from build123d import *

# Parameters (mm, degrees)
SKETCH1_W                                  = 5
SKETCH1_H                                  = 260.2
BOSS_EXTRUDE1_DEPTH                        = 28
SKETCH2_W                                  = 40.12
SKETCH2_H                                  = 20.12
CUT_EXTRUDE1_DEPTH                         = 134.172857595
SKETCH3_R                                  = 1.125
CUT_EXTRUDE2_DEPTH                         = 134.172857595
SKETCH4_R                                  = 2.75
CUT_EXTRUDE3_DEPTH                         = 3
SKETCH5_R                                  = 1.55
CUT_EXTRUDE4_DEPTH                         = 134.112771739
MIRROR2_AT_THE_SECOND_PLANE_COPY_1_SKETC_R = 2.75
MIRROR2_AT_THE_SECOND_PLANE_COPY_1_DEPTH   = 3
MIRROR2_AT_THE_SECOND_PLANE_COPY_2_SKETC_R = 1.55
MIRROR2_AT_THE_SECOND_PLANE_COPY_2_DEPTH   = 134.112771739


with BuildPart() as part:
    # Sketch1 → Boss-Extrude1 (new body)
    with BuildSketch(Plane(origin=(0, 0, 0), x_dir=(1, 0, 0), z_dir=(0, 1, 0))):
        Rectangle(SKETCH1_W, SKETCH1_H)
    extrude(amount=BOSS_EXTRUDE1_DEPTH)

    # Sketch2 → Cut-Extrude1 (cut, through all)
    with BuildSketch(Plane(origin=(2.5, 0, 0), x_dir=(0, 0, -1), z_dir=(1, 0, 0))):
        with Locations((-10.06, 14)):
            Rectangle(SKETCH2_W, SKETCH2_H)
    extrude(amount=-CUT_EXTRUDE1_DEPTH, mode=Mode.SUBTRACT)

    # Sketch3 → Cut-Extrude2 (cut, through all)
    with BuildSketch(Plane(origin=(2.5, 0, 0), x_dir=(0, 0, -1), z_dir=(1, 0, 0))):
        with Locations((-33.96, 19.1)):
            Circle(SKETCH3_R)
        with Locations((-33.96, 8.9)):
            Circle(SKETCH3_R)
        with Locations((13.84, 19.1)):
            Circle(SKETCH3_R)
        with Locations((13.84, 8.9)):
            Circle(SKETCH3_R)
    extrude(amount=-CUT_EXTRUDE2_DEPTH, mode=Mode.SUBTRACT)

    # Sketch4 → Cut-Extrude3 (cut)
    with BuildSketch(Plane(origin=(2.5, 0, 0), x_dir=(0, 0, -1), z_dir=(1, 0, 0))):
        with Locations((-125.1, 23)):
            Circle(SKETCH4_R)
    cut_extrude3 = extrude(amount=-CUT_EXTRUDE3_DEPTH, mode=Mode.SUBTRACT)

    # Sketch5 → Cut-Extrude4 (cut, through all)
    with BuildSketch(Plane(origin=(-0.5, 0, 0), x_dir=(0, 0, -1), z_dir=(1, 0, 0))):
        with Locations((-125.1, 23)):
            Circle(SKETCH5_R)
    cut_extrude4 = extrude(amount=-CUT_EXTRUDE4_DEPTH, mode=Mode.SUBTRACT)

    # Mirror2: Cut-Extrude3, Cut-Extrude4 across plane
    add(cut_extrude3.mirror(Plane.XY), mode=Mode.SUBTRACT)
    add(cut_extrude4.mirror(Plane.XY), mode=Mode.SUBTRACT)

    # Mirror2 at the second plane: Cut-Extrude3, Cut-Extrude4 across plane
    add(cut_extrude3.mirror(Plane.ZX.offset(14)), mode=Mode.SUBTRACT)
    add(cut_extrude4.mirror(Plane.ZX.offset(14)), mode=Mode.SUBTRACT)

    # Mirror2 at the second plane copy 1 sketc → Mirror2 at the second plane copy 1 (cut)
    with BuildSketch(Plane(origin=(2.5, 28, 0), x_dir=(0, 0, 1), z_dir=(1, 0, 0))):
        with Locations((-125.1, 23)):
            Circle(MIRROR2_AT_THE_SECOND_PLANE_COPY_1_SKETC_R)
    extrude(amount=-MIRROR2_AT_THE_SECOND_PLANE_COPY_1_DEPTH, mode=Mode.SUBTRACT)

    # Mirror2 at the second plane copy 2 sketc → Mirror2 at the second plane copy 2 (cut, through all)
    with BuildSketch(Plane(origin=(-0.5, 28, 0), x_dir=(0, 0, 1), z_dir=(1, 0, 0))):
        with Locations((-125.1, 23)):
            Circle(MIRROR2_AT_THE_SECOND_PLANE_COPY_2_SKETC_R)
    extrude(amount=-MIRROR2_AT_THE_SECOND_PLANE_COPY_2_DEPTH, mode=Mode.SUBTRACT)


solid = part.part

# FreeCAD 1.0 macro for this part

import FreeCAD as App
import Part
import Sketcher
from FreeCAD import Vector
Q = App.Units.Quantity

doc = App.newDocument("Part")
body = doc.addObject("PartDesign::Body", "Body")

# Sketch on XZ plane
sketch1 = body.newObject("Sketcher::SketchObject", "Sketch")
sketch1.AttachmentSupport = (doc.getObject("XZ_Plane"), [""])
sketch1.MapMode = "FlatFace"
sketch1.addGeometry(Part.LineSegment(Vector(-2.5, -130.1, 0), Vector(-2.5, 130.1, 0)), False)
sketch1.addGeometry(Part.LineSegment(Vector(-2.5, 130.1, 0), Vector(2.5, 130.1, 0)), False)
sketch1.addGeometry(Part.LineSegment(Vector(2.5, 130.1, 0), Vector(2.5, -130.1, 0)), False)
sketch1.addGeometry(Part.LineSegment(Vector(2.5, -130.1, 0), Vector(-2.5, -130.1, 0)), False)
sketch1.addConstraint(Sketcher.Constraint("Coincident", 0, 2, 1, 1))
sketch1.addConstraint(Sketcher.Constraint("Coincident", 1, 2, 2, 1))
sketch1.addConstraint(Sketcher.Constraint("Coincident", 2, 2, 3, 1))
sketch1.addConstraint(Sketcher.Constraint("Coincident", 3, 2, 0, 1))
sketch1.addConstraint(Sketcher.Constraint("Vertical", 0))
sketch1.addConstraint(Sketcher.Constraint("Horizontal", 1))
sketch1.addConstraint(Sketcher.Constraint("Vertical", 2))
sketch1.addConstraint(Sketcher.Constraint("Horizontal", 3))
sketch1.addConstraint(Sketcher.Constraint("Symmetric", 0, 2, 2, 2, -1, 1))
sketch1.addConstraint(Sketcher.Constraint("DistanceX", 1, 1, 1, 2, Q("5 mm")))
sketch1.addConstraint(Sketcher.Constraint("DistanceY", 0, 1, 0, 2, Q("260.2 mm")))
pad1 = body.newObject("PartDesign::Pad", "Pad")
pad1.Profile = sketch1
pad1.Length = 28
pad1.Reversed = True

# Sketch on YZ plane
sketch2 = body.newObject("Sketcher::SketchObject", "Sketch001")
sketch2.AttachmentSupport = (doc.getObject("YZ_Plane"), [""])
sketch2.MapMode = "FlatFace"
sketch2.AttachmentOffset = App.Placement(Vector(0, 0, 2.5), App.Rotation())
sketch2.addGeometry(Part.LineSegment(Vector(24.06, 30.12, 0), Vector(3.94, 30.12, 0)), False)
sketch2.addGeometry(Part.LineSegment(Vector(3.94, 30.12, 0), Vector(3.94, -10, 0)), False)
sketch2.addGeometry(Part.LineSegment(Vector(3.94, -10, 0), Vector(24.06, -10, 0)), False)
sketch2.addGeometry(Part.LineSegment(Vector(24.06, -10, 0), Vector(24.06, 30.12, 0)), False)
sketch2.addConstraint(Sketcher.Constraint("Coincident", 0, 2, 1, 1))
sketch2.addConstraint(Sketcher.Constraint("Coincident", 1, 2, 2, 1))
sketch2.addConstraint(Sketcher.Constraint("Coincident", 2, 2, 3, 1))
sketch2.addConstraint(Sketcher.Constraint("Coincident", 3, 2, 0, 1))
sketch2.addConstraint(Sketcher.Constraint("Horizontal", 0))
sketch2.addConstraint(Sketcher.Constraint("Vertical", 1))
sketch2.addConstraint(Sketcher.Constraint("Horizontal", 2))
sketch2.addConstraint(Sketcher.Constraint("Vertical", 3))
sketch2.addConstraint(Sketcher.Constraint("DistanceY", 1, 2, -1, 1, Q("10 mm")))
sketch2.addConstraint(Sketcher.Constraint("DistanceX", 0, 2, 0, 1, Q("20.12 mm")))
sketch2.addConstraint(Sketcher.Constraint("DistanceY", 1, 2, 1, 1, Q("40.12 mm")))
sketch2.addConstraint(Sketcher.Constraint("DistanceX", -1, 1, 0, 2, Q("3.94 mm")))
pocket1 = body.newObject("PartDesign::Pocket", "Pocket")
pocket1.Profile = sketch2
pocket1.Type = "ThroughAll"

# Sketch on YZ plane
sketch3 = body.newObject("Sketcher::SketchObject", "Sketch002")
sketch3.AttachmentSupport = (doc.getObject("YZ_Plane"), [""])
sketch3.MapMode = "FlatFace"
sketch3.AttachmentOffset = App.Placement(Vector(0, 0, 2.5), App.Rotation())
sketch3.addGeometry(Part.Circle(Vector(19.1, 33.96, 0), Vector(0, 0, 1), 1.125), False)
sketch3.addGeometry(Part.Circle(Vector(8.9, 33.96, 0), Vector(0, 0, 1), 1.125), False)
sketch3.addGeometry(Part.Circle(Vector(19.1, -13.84, 0), Vector(0, 0, 1), 1.125), False)
sketch3.addGeometry(Part.Circle(Vector(8.9, -13.84, 0), Vector(0, 0, 1), 1.125), False)
sketch3.addConstraint(Sketcher.Constraint("Equal", 0, 1))
sketch3.addConstraint(Sketcher.Constraint("Equal", 1, 2))
sketch3.addConstraint(Sketcher.Constraint("Equal", 2, 3))
sketch3.addConstraint(Sketcher.Constraint("Horizontal", 0, 3, 1, 3))
sketch3.addConstraint(Sketcher.Constraint("Horizontal", 2, 3, 3, 3))
sketch3.addConstraint(Sketcher.Constraint("Vertical", 0, 3, 2, 3))
sketch3.addConstraint(Sketcher.Constraint("Vertical", 1, 3, 3, 3))
sketch3.addConstraint(Sketcher.Constraint("Diameter", 0, Q("2.25 mm")))
sketch3.addConstraint(Sketcher.Constraint("DistanceX", -1, 1, 0, 3, Q("19.1 mm")))
sketch3.addConstraint(Sketcher.Constraint("DistanceX", -1, 1, 1, 3, Q("8.9 mm")))
sketch3.addConstraint(Sketcher.Constraint("DistanceY", 2, 3, 0, 3, Q("47.8 mm")))
sketch3.addConstraint(Sketcher.Constraint("DistanceY", -1, 1, 0, 3, Q("33.96 mm")))
pocket2 = body.newObject("PartDesign::Pocket", "Pocket001")
pocket2.Profile = sketch3
pocket2.Type = "ThroughAll"

# Sketch on YZ plane
sketch4 = body.newObject("Sketcher::SketchObject", "Sketch003")
sketch4.AttachmentSupport = (doc.getObject("YZ_Plane"), [""])
sketch4.MapMode = "FlatFace"
sketch4.AttachmentOffset = App.Placement(Vector(0, 0, 2.5), App.Rotation())
sketch4.addGeometry(Part.Circle(Vector(23, 125.1, 0), Vector(0, 0, 1), 2.75), False)
sketch4.addConstraint(Sketcher.Constraint("Diameter", 0, Q("5.5 mm")))
sketch4.addConstraint(Sketcher.Constraint("DistanceX", -1, 1, 0, 3, Q("23 mm")))
sketch4.addConstraint(Sketcher.Constraint("DistanceY", -1, 1, 0, 3, Q("125.1 mm")))
pocket3 = body.newObject("PartDesign::Pocket", "Pocket002")
pocket3.Profile = sketch4
pocket3.Length = 3

# Sketch on YZ plane
sketch5 = body.newObject("Sketcher::SketchObject", "Sketch004")
sketch5.AttachmentSupport = (doc.getObject("YZ_Plane"), [""])
sketch5.MapMode = "FlatFace"
sketch5.AttachmentOffset = App.Placement(Vector(0, 0, -0.5), App.Rotation())
sketch5.addGeometry(Part.Circle(Vector(23, 125.1, 0), Vector(0, 0, 1), 1.55), False)
sketch5.addConstraint(Sketcher.Constraint("Diameter", 0, Q("3.1 mm")))
sketch5.addConstraint(Sketcher.Constraint("DistanceX", -1, 1, 0, 3, Q("23 mm")))
sketch5.addConstraint(Sketcher.Constraint("DistanceY", -1, 1, 0, 3, Q("125.1 mm")))
pocket4 = body.newObject("PartDesign::Pocket", "Pocket003")
pocket4.Profile = sketch5
pocket4.Type = "ThroughAll"
doc.recompute()

mirrored = body.newObject("PartDesign::Mirrored", "Mirrored")
mirrored.Originals = [pocket3, pocket4]
mirrored.MirrorPlane = (doc.getObject("XY_Plane"), [""])
body.Tip = mirrored
doc.recompute()

datumplane = body.newObject("PartDesign::Plane", "DatumPlane")
datumplane.AttachmentSupport = (doc.getObject("XZ_Plane"), [""])
datumplane.MapMode = "FlatFace"
datumplane.AttachmentOffset = App.Placement(Vector(0, 0, -14), App.Rotation())
mirrored2 = body.newObject("PartDesign::Mirrored", "Mirrored001")
mirrored2.Originals = [pocket3, pocket4]
mirrored2.MirrorPlane = (datumplane, [""])
body.Tip = mirrored2

# Sketch on YZ plane
sketch6 = body.newObject("Sketcher::SketchObject", "Sketch005")
sketch6.AttachmentSupport = (doc.getObject("YZ_Plane"), [""])
sketch6.MapMode = "FlatFace"
sketch6.AttachmentOffset = App.Placement(Vector(0, 0, 2.5), App.Rotation())
sketch6.addGeometry(Part.Circle(Vector(5, -125.1, 0), Vector(0, 0, 1), 2.75), False)
sketch6.addConstraint(Sketcher.Constraint("Diameter", 0, Q("5.5 mm")))
sketch6.addConstraint(Sketcher.Constraint("DistanceX", -1, 1, 0, 3, Q("5 mm")))
sketch6.addConstraint(Sketcher.Constraint("DistanceY", 0, 3, -1, 1, Q("125.1 mm")))
pocket5 = body.newObject("PartDesign::Pocket", "Pocket004")
pocket5.Profile = sketch6
pocket5.Length = 3

# Sketch on YZ plane
sketch7 = body.newObject("Sketcher::SketchObject", "Sketch006")
sketch7.AttachmentSupport = (doc.getObject("YZ_Plane"), [""])
sketch7.MapMode = "FlatFace"
sketch7.AttachmentOffset = App.Placement(Vector(0, 0, -0.5), App.Rotation())
sketch7.addGeometry(Part.Circle(Vector(5, -125.1, 0), Vector(0, 0, 1), 1.55), False)
sketch7.addConstraint(Sketcher.Constraint("Diameter", 0, Q("3.1 mm")))
sketch7.addConstraint(Sketcher.Constraint("DistanceX", -1, 1, 0, 3, Q("5 mm")))
sketch7.addConstraint(Sketcher.Constraint("DistanceY", 0, 3, -1, 1, Q("125.1 mm")))
pocket6 = body.newObject("PartDesign::Pocket", "Pocket005")
pocket6.Profile = sketch7
pocket6.Type = "ThroughAll"

doc.recompute()
